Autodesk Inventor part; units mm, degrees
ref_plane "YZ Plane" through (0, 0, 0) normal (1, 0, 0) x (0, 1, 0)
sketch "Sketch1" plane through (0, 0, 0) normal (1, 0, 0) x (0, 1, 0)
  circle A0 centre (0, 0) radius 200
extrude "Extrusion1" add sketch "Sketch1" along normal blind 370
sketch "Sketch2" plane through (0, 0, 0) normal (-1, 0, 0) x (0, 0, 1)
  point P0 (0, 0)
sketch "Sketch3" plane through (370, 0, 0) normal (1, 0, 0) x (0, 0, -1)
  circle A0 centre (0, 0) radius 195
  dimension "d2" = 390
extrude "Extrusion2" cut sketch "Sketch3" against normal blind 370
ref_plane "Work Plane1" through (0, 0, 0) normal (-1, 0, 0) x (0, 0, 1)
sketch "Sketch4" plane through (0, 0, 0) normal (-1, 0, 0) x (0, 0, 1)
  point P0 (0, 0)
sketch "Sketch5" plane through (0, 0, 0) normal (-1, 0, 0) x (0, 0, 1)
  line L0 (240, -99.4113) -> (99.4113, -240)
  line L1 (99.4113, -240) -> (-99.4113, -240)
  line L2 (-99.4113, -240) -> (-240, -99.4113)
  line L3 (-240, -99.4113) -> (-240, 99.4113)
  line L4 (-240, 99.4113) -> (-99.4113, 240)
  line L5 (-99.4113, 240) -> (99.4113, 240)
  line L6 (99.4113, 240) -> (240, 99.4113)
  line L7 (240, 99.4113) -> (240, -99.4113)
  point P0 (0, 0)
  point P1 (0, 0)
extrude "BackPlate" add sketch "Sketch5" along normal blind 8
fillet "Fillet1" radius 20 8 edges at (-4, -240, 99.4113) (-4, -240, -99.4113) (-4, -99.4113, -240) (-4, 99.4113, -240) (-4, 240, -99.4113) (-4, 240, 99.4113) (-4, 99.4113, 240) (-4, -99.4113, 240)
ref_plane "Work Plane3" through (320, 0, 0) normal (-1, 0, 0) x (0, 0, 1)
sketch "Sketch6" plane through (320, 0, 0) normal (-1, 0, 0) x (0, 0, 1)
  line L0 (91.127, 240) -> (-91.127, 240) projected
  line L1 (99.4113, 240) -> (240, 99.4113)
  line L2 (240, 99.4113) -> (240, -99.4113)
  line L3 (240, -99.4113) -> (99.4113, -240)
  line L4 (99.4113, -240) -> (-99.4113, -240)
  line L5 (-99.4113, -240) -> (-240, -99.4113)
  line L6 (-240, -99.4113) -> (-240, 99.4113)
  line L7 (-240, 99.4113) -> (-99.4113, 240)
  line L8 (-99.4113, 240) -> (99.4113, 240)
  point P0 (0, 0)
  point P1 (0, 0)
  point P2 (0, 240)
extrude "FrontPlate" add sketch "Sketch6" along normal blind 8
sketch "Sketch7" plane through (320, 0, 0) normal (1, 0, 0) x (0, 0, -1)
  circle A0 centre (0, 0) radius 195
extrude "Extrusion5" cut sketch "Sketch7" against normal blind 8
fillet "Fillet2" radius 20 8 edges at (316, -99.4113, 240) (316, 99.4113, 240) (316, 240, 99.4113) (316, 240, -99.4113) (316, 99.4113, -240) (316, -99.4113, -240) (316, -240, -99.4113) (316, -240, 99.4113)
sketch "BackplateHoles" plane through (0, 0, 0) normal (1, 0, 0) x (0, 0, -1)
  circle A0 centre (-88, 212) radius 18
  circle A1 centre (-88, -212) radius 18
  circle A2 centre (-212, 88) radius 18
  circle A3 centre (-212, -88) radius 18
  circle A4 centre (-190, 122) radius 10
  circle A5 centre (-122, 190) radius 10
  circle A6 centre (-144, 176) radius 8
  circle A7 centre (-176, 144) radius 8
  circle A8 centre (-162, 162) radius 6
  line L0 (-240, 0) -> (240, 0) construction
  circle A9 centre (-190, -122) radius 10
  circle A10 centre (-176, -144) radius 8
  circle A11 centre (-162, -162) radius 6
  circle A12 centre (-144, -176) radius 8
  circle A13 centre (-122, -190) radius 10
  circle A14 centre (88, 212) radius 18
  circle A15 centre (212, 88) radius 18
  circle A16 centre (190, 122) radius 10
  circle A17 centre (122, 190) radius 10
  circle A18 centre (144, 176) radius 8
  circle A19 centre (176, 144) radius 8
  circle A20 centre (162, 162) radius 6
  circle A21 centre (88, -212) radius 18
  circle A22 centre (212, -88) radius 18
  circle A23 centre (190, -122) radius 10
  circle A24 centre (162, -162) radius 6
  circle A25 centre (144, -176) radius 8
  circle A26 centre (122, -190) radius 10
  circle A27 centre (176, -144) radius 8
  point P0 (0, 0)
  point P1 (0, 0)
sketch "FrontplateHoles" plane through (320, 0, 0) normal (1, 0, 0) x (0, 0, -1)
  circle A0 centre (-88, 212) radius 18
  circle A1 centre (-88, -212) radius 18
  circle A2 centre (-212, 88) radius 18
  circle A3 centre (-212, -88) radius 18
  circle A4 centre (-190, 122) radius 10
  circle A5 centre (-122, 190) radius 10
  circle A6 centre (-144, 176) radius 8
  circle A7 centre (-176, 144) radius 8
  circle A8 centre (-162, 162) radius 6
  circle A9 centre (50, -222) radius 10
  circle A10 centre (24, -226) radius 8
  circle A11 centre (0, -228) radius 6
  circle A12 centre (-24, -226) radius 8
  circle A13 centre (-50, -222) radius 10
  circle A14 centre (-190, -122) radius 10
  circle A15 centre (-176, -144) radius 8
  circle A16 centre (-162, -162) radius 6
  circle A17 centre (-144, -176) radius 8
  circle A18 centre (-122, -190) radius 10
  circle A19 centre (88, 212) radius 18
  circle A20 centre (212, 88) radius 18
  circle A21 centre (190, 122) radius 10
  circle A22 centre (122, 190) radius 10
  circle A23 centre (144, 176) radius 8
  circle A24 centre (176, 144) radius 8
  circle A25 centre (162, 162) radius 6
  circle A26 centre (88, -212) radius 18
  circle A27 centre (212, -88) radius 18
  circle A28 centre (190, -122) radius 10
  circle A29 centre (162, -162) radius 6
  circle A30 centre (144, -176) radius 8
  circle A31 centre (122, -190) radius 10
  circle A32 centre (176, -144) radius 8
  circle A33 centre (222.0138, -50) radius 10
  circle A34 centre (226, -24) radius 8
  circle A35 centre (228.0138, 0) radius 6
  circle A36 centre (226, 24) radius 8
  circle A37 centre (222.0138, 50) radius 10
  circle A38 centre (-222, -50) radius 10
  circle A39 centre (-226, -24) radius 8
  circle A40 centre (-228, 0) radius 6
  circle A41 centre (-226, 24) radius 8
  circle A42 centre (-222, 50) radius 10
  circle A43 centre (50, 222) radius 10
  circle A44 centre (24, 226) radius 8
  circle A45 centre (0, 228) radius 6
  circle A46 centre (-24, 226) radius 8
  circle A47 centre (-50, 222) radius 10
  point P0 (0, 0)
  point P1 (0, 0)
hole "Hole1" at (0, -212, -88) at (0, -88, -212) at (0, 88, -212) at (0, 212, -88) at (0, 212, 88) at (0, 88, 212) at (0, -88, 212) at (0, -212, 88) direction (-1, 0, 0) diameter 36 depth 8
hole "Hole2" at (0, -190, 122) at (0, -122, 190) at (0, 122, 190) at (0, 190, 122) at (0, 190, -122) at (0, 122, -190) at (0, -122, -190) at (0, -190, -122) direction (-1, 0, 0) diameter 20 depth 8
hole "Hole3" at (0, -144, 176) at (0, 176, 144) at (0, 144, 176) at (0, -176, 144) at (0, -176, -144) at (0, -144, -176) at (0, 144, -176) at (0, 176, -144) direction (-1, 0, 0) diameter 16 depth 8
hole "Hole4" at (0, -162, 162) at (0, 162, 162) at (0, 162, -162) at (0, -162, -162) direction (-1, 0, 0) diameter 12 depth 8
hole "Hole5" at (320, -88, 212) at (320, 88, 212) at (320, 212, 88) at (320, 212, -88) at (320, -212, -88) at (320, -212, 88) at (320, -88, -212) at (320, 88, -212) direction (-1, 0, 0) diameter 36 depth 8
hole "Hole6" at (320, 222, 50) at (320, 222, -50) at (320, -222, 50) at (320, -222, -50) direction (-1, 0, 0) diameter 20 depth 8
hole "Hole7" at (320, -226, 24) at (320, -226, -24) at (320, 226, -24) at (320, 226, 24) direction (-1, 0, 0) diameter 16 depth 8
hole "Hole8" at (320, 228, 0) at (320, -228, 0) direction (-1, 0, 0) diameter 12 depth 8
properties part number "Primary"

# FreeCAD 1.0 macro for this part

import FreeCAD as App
import Part
import Sketcher
from FreeCAD import Vector


def edges_at(feature, points):
    """Names of the edges that pass closest to the given points."""
    edges = feature.Shape.Edges
    near = lambda p: min(range(len(edges)), key=lambda i: edges[i].distToShape(Part.Vertex(*p))[0])
    return sorted({f"Edge{near(p) + 1}" for p in points})


def add_polygon(sketch, points):
    """Adds a closed chain of lines whose ends are joined by coincident constraints."""
    first, n = sketch.GeometryCount, len(points)
    for a, b in zip(points, points[1:] + points[:1]):
        sketch.addGeometry(Part.LineSegment(App.Vector(*a, 0), App.Vector(*b, 0)), False)
    for i in range(n):
        sketch.addConstraint(Sketcher.Constraint("Coincident", first + i, 2, first + (i + 1) % n, 1))

doc = App.newDocument("Part")
body = doc.addObject("PartDesign::Body", "Body")

# Sketch on YZ plane
sketch1 = doc.addObject("Sketcher::SketchObject", "Sketch")
body.addObject(sketch1)
sketch1.AttachmentSupport = (doc.YZ_Plane, [""])
sketch1.MapMode = "FlatFace"
sketch1.addGeometry(Part.Circle(Vector(0, 0, 0), Vector(0, 0, 1), 200), False)
sketch1.addConstraint([
    Sketcher.Constraint("Coincident", 0, 3, -1, 1),
    Sketcher.Constraint("Diameter", 0, 400.0),
])
pad1 = doc.addObject("PartDesign::Pad", "Pad")
body.addObject(pad1)
pad1.Profile = sketch1
pad1.Length = 370

# Sketch on YZ plane
sketch2 = doc.addObject("Sketcher::SketchObject", "Sketch001")
body.addObject(sketch2)
sketch2.AttachmentSupport = (doc.YZ_Plane, [""])
sketch2.MapMode = "FlatFace"
sketch2.AttachmentOffset = App.Placement(Vector(0, 0, 370), App.Rotation())
sketch2.addGeometry(Part.Circle(Vector(0, 0, 0), Vector(0, 0, 1), 195), False)
sketch2.addConstraint([
    Sketcher.Constraint("Coincident", 0, 3, -1, 1),
    Sketcher.Constraint("Diameter", 0, 390.0),
])
pocket1 = doc.addObject("PartDesign::Pocket", "Pocket")
body.addObject(pocket1)
pocket1.Profile = sketch2
pocket1.Length = 370

# Sketch on YZ plane
sketch3 = doc.addObject("Sketcher::SketchObject", "Sketch002")
body.addObject(sketch3)
sketch3.AttachmentSupport = (doc.YZ_Plane, [""])
sketch3.MapMode = "FlatFace"
add_polygon(sketch3, [(-240, 99), (-99, 240), (99, 240), (240, 99), (240, -99), (99, -240), (-99, -240), (-240, -99)])  # lines 0-7
sketch3.addConstraint([
    Sketcher.Constraint("Horizontal", 1),
    Sketcher.Constraint("Vertical", 3),
    Sketcher.Constraint("Horizontal", 5),
    Sketcher.Constraint("Vertical", 7),
    Sketcher.Constraint("Symmetric", 0, 2, 4, 2, -1, 1),
    Sketcher.Constraint("Symmetric", 2, 2, 6, 2, -1, 1),
    Sketcher.Constraint("Perpendicular", 0, 2),
    Sketcher.Constraint("Perpendicular", 2, 4),
    Sketcher.Constraint("Perpendicular", 4, 6),
    Sketcher.Constraint("Horizontal", 3, 2, 6, 2),
    Sketcher.Constraint("Vertical", 1, 2, 4, 2),
    Sketcher.Constraint("Equal", 5, 3),
    Sketcher.Constraint("DistanceY", -1, 1, 0, 2, 240.0),
    Sketcher.Constraint("DistanceX", 1, 1, 1, 2, 198.8226),
])
pad2 = doc.addObject("PartDesign::Pad", "Pad001")
body.addObject(pad2)
pad2.Profile = sketch3
pad2.Length = 8
pad2.Reversed = True
doc.recompute()

fillet = doc.addObject("PartDesign::Fillet", "Fillet")
body.addObject(fillet)
fillet.Base = (pad2, edges_at(pad2, [
    (-4, -240, 99.411),
    (-4, -240, -99.411),
    (-4, -99.411, -240),
    (-4, 99.411, -240),
    (-4, 240, -99.411),
    (-4, 240, 99.411),
    (-4, 99.411, 240),
    (-4, -99.411, 240),
]))
fillet.Radius = 20

# Sketch on YZ plane
sketch4 = doc.addObject("Sketcher::SketchObject", "Sketch003")
body.addObject(sketch4)
sketch4.AttachmentSupport = (doc.YZ_Plane, [""])
sketch4.MapMode = "FlatFace"
sketch4.AttachmentOffset = App.Placement(Vector(0, 0, 320), App.Rotation())
add_polygon(sketch4, [(240, 99), (240, -99), (99, -240), (-99, -240), (-240, -99), (-240, 99), (-99, 240), (99, 240)])  # lines 0-7
sketch4.addConstraint([
    Sketcher.Constraint("Vertical", 0),
    Sketcher.Constraint("Horizontal", 2),
    Sketcher.Constraint("Vertical", 4),
    Sketcher.Constraint("Horizontal", 6),
    Sketcher.Constraint("Symmetric", 0, 2, 4, 2, -1, 1),
    Sketcher.Constraint("Symmetric", 1, 2, 5, 2, -1, 1),
    Sketcher.Constraint("Perpendicular", 1, 3),
    Sketcher.Constraint("Perpendicular", 5, 7),
    Sketcher.Constraint("Horizontal", 0, 2, 3, 2),
    Sketcher.Constraint("Horizontal", 4, 2, 7, 2),
    Sketcher.Constraint("Vertical", 2, 2, 5, 2),
    Sketcher.Constraint("Equal", 6, 0),
    Sketcher.Constraint("DistanceX", -1, 1, 0, 2, 240.0),
    Sketcher.Constraint("DistanceX", 2, 2, 2, 1, 198.8226),
])
pad3 = doc.addObject("PartDesign::Pad", "Pad002")
body.addObject(pad3)
pad3.Profile = sketch4
pad3.Length = 8
pad3.Reversed = True

# Sketch on YZ plane
sketch5 = doc.addObject("Sketcher::SketchObject", "Sketch004")
body.addObject(sketch5)
sketch5.AttachmentSupport = (doc.YZ_Plane, [""])
sketch5.MapMode = "FlatFace"
sketch5.AttachmentOffset = App.Placement(Vector(0, 0, 320), App.Rotation())
sketch5.addGeometry(Part.Circle(Vector(0, 0, 0), Vector(0, 0, 1), 195), False)
sketch5.addConstraint([
    Sketcher.Constraint("Coincident", 0, 3, -1, 1),
    Sketcher.Constraint("Diameter", 0, 390.0),
])
pocket2 = doc.addObject("PartDesign::Pocket", "Pocket001")
body.addObject(pocket2)
pocket2.Profile = sketch5
pocket2.Length = 8
doc.recompute()

fillet2 = doc.addObject("PartDesign::Fillet", "Fillet001")
body.addObject(fillet2)
fillet2.Base = (pocket2, edges_at(pocket2, [
    (316, -99.411, 240),
    (316, 99.411, 240),
    (316, 240, 99.411),
    (316, 240, -99.411),
    (316, 99.411, -240),
    (316, -99.411, -240),
    (316, -240, -99.411),
    (316, -240, 99.411),
]))
fillet2.Radius = 20

# Sketch on YZ plane
sketch6 = doc.addObject("Sketcher::SketchObject", "Sketch005")
body.addObject(sketch6)
sketch6.AttachmentSupport = (doc.YZ_Plane, [""])
sketch6.MapMode = "FlatFace"
sketch6.addGeometry([
    Part.Circle(Vector(-212, -88, 0), Vector(0, 0, 1), 18),  # 0
    Part.Circle(Vector(-88, -212, 0), Vector(0, 0, 1), 18),  # 1
    Part.Circle(Vector(88, -212, 0), Vector(0, 0, 1), 18),  # 2
    Part.Circle(Vector(212, -88, 0), Vector(0, 0, 1), 18),  # 3
    Part.Circle(Vector(212, 88, 0), Vector(0, 0, 1), 18),  # 4
    Part.Circle(Vector(88, 212, 0), Vector(0, 0, 1), 18),  # 5
    Part.Circle(Vector(-88, 212, 0), Vector(0, 0, 1), 18),  # 6
    Part.Circle(Vector(-212, 88, 0), Vector(0, 0, 1), 18),  # 7
], False)
sketch6.addConstraint([
    Sketcher.Constraint("Equal", 0, 1),
    Sketcher.Constraint("Equal", 1, 2),
    Sketcher.Constraint("Equal", 2, 3),
    Sketcher.Constraint("Equal", 3, 4),
    Sketcher.Constraint("Equal", 4, 5),
    Sketcher.Constraint("Equal", 5, 6),
    Sketcher.Constraint("Equal", 6, 7),
    Sketcher.Constraint("Symmetric", 0, 3, 4, 3, -1, 1),
    Sketcher.Constraint("Symmetric", 1, 3, 5, 3, -1, 1),
    Sketcher.Constraint("Symmetric", 2, 3, 6, 3, -1, 1),
    Sketcher.Constraint("Symmetric", 3, 3, 7, 3, -1, 1),
    Sketcher.Constraint("Symmetric", 1, 3, 2, 3, -2),
    Sketcher.Constraint("Symmetric", 0, 3, 3, 3, -2),
    Sketcher.Constraint("Diameter", 0, 36.0),
    Sketcher.Constraint("DistanceX", 0, 3, -1, 1, 212.0),
    Sketcher.Constraint("DistanceY", 0, 3, -1, 1, 88.0),
    Sketcher.Constraint("DistanceX", 1, 3, -1, 1, 88.0),
    Sketcher.Constraint("DistanceY", 1, 3, -1, 1, 212.0),
])
doc.recompute()
hole = doc.addObject("PartDesign::Hole", "Hole")
body.addObject(hole)
hole.Profile = sketch6
hole.ThreadType = "None"
hole.Diameter = 36
hole.DepthType = "Dimension"
hole.Depth = 8
hole.DrillPoint = "Flat"

# Sketch on YZ plane
sketch7 = doc.addObject("Sketcher::SketchObject", "Sketch006")
body.addObject(sketch7)
sketch7.AttachmentSupport = (doc.YZ_Plane, [""])
sketch7.MapMode = "FlatFace"
sketch7.addGeometry([
    Part.Circle(Vector(-190, 122, 0), Vector(0, 0, 1), 10),  # 0
    Part.Circle(Vector(-122, 190, 0), Vector(0, 0, 1), 10),  # 1
    Part.Circle(Vector(122, 190, 0), Vector(0, 0, 1), 10),  # 2
    Part.Circle(Vector(190, 122, 0), Vector(0, 0, 1), 10),  # 3
    Part.Circle(Vector(190, -122, 0), Vector(0, 0, 1), 10),  # 4
    Part.Circle(Vector(122, -190, 0), Vector(0, 0, 1), 10),  # 5
    Part.Circle(Vector(-122, -190, 0), Vector(0, 0, 1), 10),  # 6
    Part.Circle(Vector(-190, -122, 0), Vector(0, 0, 1), 10),  # 7
], False)
sketch7.addConstraint([
    Sketcher.Constraint("Equal", 0, 1),
    Sketcher.Constraint("Equal", 1, 2),
    Sketcher.Constraint("Equal", 2, 3),
    Sketcher.Constraint("Equal", 3, 4),
    Sketcher.Constraint("Equal", 4, 5),
    Sketcher.Constraint("Equal", 5, 6),
    Sketcher.Constraint("Equal", 6, 7),
    Sketcher.Constraint("Symmetric", 0, 3, 4, 3, -1, 1),
    Sketcher.Constraint("Symmetric", 1, 3, 5, 3, -1, 1),
    Sketcher.Constraint("Symmetric", 2, 3, 6, 3, -1, 1),
    Sketcher.Constraint("Symmetric", 3, 3, 7, 3, -1, 1),
    Sketcher.Constraint("Symmetric", 1, 3, 2, 3, -2),
    Sketcher.Constraint("Symmetric", 0, 3, 3, 3, -2),
    Sketcher.Constraint("Diameter", 0, 20.0),
    Sketcher.Constraint("DistanceX", 0, 3, -1, 1, 190.0),
    Sketcher.Constraint("DistanceY", -1, 1, 0, 3, 122.0),
    Sketcher.Constraint("DistanceX", 1, 3, -1, 1, 122.0),
    Sketcher.Constraint("DistanceY", -1, 1, 1, 3, 190.0),
])
doc.recompute()
hole2 = doc.addObject("PartDesign::Hole", "Hole001")
body.addObject(hole2)
hole2.Profile = sketch7
hole2.ThreadType = "None"
hole2.Diameter = 20
hole2.DepthType = "Dimension"
hole2.Depth = 8
hole2.DrillPoint = "Flat"

# Sketch on YZ plane
sketch8 = doc.addObject("Sketcher::SketchObject", "Sketch007")
body.addObject(sketch8)
sketch8.AttachmentSupport = (doc.YZ_Plane, [""])
sketch8.MapMode = "FlatFace"
sketch8.addGeometry([
    Part.Circle(Vector(-144, 176, 0), Vector(0, 0, 1), 8),  # 0
    Part.Circle(Vector(176, 144, 0), Vector(0, 0, 1), 8),  # 1
    Part.Circle(Vector(144, 176, 0), Vector(0, 0, 1), 8),  # 2
    Part.Circle(Vector(-176, 144, 0), Vector(0, 0, 1), 8),  # 3
    Part.Circle(Vector(-176, -144, 0), Vector(0, 0, 1), 8),  # 4
    Part.Circle(Vector(-144, -176, 0), Vector(0, 0, 1), 8),  # 5
    Part.Circle(Vector(144, -176, 0), Vector(0, 0, 1), 8),  # 6
    Part.Circle(Vector(176, -144, 0), Vector(0, 0, 1), 8),  # 7
], False)
sketch8.addConstraint([
    Sketcher.Constraint("Equal", 0, 1),
    Sketcher.Constraint("Equal", 1, 2),
    Sketcher.Constraint("Equal", 2, 3),
    Sketcher.Constraint("Equal", 3, 4),
    Sketcher.Constraint("Equal", 4, 5),
    Sketcher.Constraint("Equal", 5, 6),
    Sketcher.Constraint("Equal", 6, 7),
    Sketcher.Constraint("Symmetric", 1, 3, 4, 3, -1, 1),
    Sketcher.Constraint("Symmetric", 2, 3, 5, 3, -1, 1),
    Sketcher.Constraint("Symmetric", 0, 3, 6, 3, -1, 1),
    Sketcher.Constraint("Symmetric", 3, 3, 7, 3, -1, 1),
    Sketcher.Constraint("Symmetric", 0, 3, 2, 3, -2),
    Sketcher.Constraint("Symmetric", 1, 3, 3, 3, -2),
    Sketcher.Constraint("Diameter", 0, 16.0),
    Sketcher.Constraint("DistanceX", 0, 3, -1, 1, 144.0),
    Sketcher.Constraint("DistanceY", -1, 1, 0, 3, 176.0),
    Sketcher.Constraint("DistanceX", -1, 1, 1, 3, 176.0),
    Sketcher.Constraint("DistanceY", -1, 1, 1, 3, 144.0),
])
doc.recompute()
hole3 = doc.addObject("PartDesign::Hole", "Hole002")
body.addObject(hole3)
hole3.Profile = sketch8
hole3.ThreadType = "None"
hole3.Diameter = 16
hole3.DepthType = "Dimension"
hole3.Depth = 8
hole3.DrillPoint = "Flat"

# Sketch on YZ plane
sketch9 = doc.addObject("Sketcher::SketchObject", "Sketch008")
body.addObject(sketch9)
sketch9.AttachmentSupport = (doc.YZ_Plane, [""])
sketch9.MapMode = "FlatFace"
sketch9.addGeometry([
    Part.Circle(Vector(-162, 162, 0), Vector(0, 0, 1), 6),
    Part.Circle(Vector(162, 162, 0), Vector(0, 0, 1), 6),
    Part.Circle(Vector(162, -162, 0), Vector(0, 0, 1), 6),
    Part.Circle(Vector(-162, -162, 0), Vector(0, 0, 1), 6),
], False)
sketch9.addConstraint([
    Sketcher.Constraint("Equal", 0, 1),
    Sketcher.Constraint("Equal", 1, 2),
    Sketcher.Constraint("Equal", 2, 3),
    Sketcher.Constraint("Symmetric", 0, 3, 2, 3, -1, 1),
    Sketcher.Constraint("Symmetric", 1, 3, 3, 3, -1, 1),
    Sketcher.Constraint("Symmetric", 0, 3, 1, 3, -2),
    Sketcher.Constraint("Diameter", 0, 12.0),
    Sketcher.Constraint("DistanceX", 0, 3, -1, 1, 162.0),
    Sketcher.Constraint("DistanceY", -1, 1, 0, 3, 162.0),
])
doc.recompute()
hole4 = doc.addObject("PartDesign::Hole", "Hole003")
body.addObject(hole4)
hole4.Profile = sketch9
hole4.ThreadType = "None"
hole4.Diameter = 12
hole4.DepthType = "Dimension"
hole4.Depth = 8
hole4.DrillPoint = "Flat"

# Sketch on YZ plane
sketch10 = doc.addObject("Sketcher::SketchObject", "Sketch009")
body.addObject(sketch10)
sketch10.AttachmentSupport = (doc.YZ_Plane, [""])
sketch10.MapMode = "FlatFace"
sketch10.AttachmentOffset = App.Placement(Vector(0, 0, 320), App.Rotation())
sketch10.addGeometry([
    Part.Circle(Vector(-88, 212, 0), Vector(0, 0, 1), 18),  # 0
    Part.Circle(Vector(88, 212, 0), Vector(0, 0, 1), 18),  # 1
    Part.Circle(Vector(212, 88, 0), Vector(0, 0, 1), 18),  # 2
    Part.Circle(Vector(212, -88, 0), Vector(0, 0, 1), 18),  # 3
    Part.Circle(Vector(-212, -88, 0), Vector(0, 0, 1), 18),  # 4
    Part.Circle(Vector(-212, 88, 0), Vector(0, 0, 1), 18),  # 5
    Part.Circle(Vector(-88, -212, 0), Vector(0, 0, 1), 18),  # 6
    Part.Circle(Vector(88, -212, 0), Vector(0, 0, 1), 18),  # 7
], False)
sketch10.addConstraint([
    Sketcher.Constraint("Equal", 0, 1),
    Sketcher.Constraint("Equal", 1, 2),
    Sketcher.Constraint("Equal", 2, 3),
    Sketcher.Constraint("Equal", 3, 4),
    Sketcher.Constraint("Equal", 4, 5),
    Sketcher.Constraint("Equal", 5, 6),
    Sketcher.Constraint("Equal", 6, 7),
    Sketcher.Constraint("Symmetric", 2, 3, 4, 3, -1, 1),
    Sketcher.Constraint("Symmetric", 3, 3, 5, 3, -1, 1),
    Sketcher.Constraint("Symmetric", 1, 3, 6, 3, -1, 1),
    Sketcher.Constraint("Symmetric", 0, 3, 7, 3, -1, 1),
    Sketcher.Constraint("Symmetric", 0, 3, 1, 3, -2),
    Sketcher.Constraint("Symmetric", 3, 3, 4, 3, -2),
    Sketcher.Constraint("Diameter", 0, 36.0),
    Sketcher.Constraint("DistanceX", 0, 3, -1, 1, 88.0),
    Sketcher.Constraint("DistanceY", -1, 1, 0, 3, 212.0),
    Sketcher.Constraint("DistanceX", -1, 1, 2, 3, 212.0),
    Sketcher.Constraint("DistanceY", -1, 1, 2, 3, 88.0),
])
doc.recompute()
hole5 = doc.addObject("PartDesign::Hole", "Hole004")
body.addObject(hole5)
hole5.Profile = sketch10
hole5.ThreadType = "None"
hole5.Diameter = 36
hole5.DepthType = "Dimension"
hole5.Depth = 8
hole5.DrillPoint = "Flat"

# Sketch on YZ plane
sketch11 = doc.addObject("Sketcher::SketchObject", "Sketch010")
body.addObject(sketch11)
sketch11.AttachmentSupport = (doc.YZ_Plane, [""])
sketch11.MapMode = "FlatFace"
sketch11.AttachmentOffset = App.Placement(Vector(0, 0, 320), App.Rotation())
sketch11.addGeometry([
    Part.Circle(Vector(222, 50, 0), Vector(0, 0, 1), 10),
    Part.Circle(Vector(222, -50, 0), Vector(0, 0, 1), 10),
    Part.Circle(Vector(-222, 50, 0), Vector(0, 0, 1), 10),
    Part.Circle(Vector(-222, -50, 0), Vector(0, 0, 1), 10),
], False)
sketch11.addConstraint([
    Sketcher.Constraint("Equal", 0, 1),
    Sketcher.Constraint("Equal", 1, 2),
    Sketcher.Constraint("Equal", 2, 3),
    Sketcher.Constraint("Symmetric", 1, 3, 2, 3, -1, 1),
    Sketcher.Constraint("Symmetric", 0, 3, 3, 3, -1, 1),
    Sketcher.Constraint("Symmetric", 0, 3, 2, 3, -2),
    Sketcher.Constraint("Diameter", 0, 20.0),
    Sketcher.Constraint("DistanceX", -1, 1, 0, 3, 222.0),
    Sketcher.Constraint("DistanceY", -1, 1, 0, 3, 50.0),
])
doc.recompute()
hole6 = doc.addObject("PartDesign::Hole", "Hole005")
body.addObject(hole6)
hole6.Profile = sketch11
hole6.ThreadType = "None"
hole6.Diameter = 20
hole6.DepthType = "Dimension"
hole6.Depth = 8
hole6.DrillPoint = "Flat"

# Sketch on YZ plane
sketch12 = doc.addObject("Sketcher::SketchObject", "Sketch011")
body.addObject(sketch12)
sketch12.AttachmentSupport = (doc.YZ_Plane, [""])
sketch12.MapMode = "FlatFace"
sketch12.AttachmentOffset = App.Placement(Vector(0, 0, 320), App.Rotation())
sketch12.addGeometry([
    Part.Circle(Vector(-226, 24, 0), Vector(0, 0, 1), 8),
    Part.Circle(Vector(-226, -24, 0), Vector(0, 0, 1), 8),
    Part.Circle(Vector(226, -24, 0), Vector(0, 0, 1), 8),
    Part.Circle(Vector(226, 24, 0), Vector(0, 0, 1), 8),
], False)
sketch12.addConstraint([
    Sketcher.Constraint("Equal", 0, 1),
    Sketcher.Constraint("Equal", 1, 2),
    Sketcher.Constraint("Equal", 2, 3),
    Sketcher.Constraint("Symmetric", 0, 3, 2, 3, -1, 1),
    Sketcher.Constraint("Symmetric", 1, 3, 3, 3, -1, 1),
    Sketcher.Constraint("Symmetric", 1, 3, 2, 3, -2),
    Sketcher.Constraint("Diameter", 0, 16.0),
    Sketcher.Constraint("DistanceX", 0, 3, -1, 1, 226.0),
    Sketcher.Constraint("DistanceY", -1, 1, 0, 3, 24.0),
])
doc.recompute()
hole7 = doc.addObject("PartDesign::Hole", "Hole006")
body.addObject(hole7)
hole7.Profile = sketch12
hole7.ThreadType = "None"
hole7.Diameter = 16
hole7.DepthType = "Dimension"
hole7.Depth = 8
hole7.DrillPoint = "Flat"

# Sketch on YZ plane
sketch13 = doc.addObject("Sketcher::SketchObject", "Sketch012")
body.addObject(sketch13)
sketch13.AttachmentSupport = (doc.YZ_Plane, [""])
sketch13.MapMode = "FlatFace"
sketch13.AttachmentOffset = App.Placement(Vector(0, 0, 320), App.Rotation())
sketch13.addGeometry([
    Part.Circle(Vector(228, 0, 0), Vector(0, 0, 1), 6),
    Part.Circle(Vector(-228, 0, 0), Vector(0, 0, 1), 6),
], False)
sketch13.addConstraint([
    Sketcher.Constraint("Equal", 0, 1),
    Sketcher.Constraint("Symmetric", 0, 3, 1, 3, -1, 1),
    Sketcher.Constraint("PointOnObject", 0, 3, -1),
    Sketcher.Constraint("Diameter", 0, 12.0),
    Sketcher.Constraint("DistanceX", -1, 1, 0, 3, 228.0),
])
doc.recompute()
hole8 = doc.addObject("PartDesign::Hole", "Hole007")
body.addObject(hole8)
hole8.Profile = sketch13
hole8.ThreadType = "None"
hole8.Diameter = 12
hole8.DepthType = "Dimension"
hole8.Depth = 8
hole8.DrillPoint = "Flat"

doc.recompute()
